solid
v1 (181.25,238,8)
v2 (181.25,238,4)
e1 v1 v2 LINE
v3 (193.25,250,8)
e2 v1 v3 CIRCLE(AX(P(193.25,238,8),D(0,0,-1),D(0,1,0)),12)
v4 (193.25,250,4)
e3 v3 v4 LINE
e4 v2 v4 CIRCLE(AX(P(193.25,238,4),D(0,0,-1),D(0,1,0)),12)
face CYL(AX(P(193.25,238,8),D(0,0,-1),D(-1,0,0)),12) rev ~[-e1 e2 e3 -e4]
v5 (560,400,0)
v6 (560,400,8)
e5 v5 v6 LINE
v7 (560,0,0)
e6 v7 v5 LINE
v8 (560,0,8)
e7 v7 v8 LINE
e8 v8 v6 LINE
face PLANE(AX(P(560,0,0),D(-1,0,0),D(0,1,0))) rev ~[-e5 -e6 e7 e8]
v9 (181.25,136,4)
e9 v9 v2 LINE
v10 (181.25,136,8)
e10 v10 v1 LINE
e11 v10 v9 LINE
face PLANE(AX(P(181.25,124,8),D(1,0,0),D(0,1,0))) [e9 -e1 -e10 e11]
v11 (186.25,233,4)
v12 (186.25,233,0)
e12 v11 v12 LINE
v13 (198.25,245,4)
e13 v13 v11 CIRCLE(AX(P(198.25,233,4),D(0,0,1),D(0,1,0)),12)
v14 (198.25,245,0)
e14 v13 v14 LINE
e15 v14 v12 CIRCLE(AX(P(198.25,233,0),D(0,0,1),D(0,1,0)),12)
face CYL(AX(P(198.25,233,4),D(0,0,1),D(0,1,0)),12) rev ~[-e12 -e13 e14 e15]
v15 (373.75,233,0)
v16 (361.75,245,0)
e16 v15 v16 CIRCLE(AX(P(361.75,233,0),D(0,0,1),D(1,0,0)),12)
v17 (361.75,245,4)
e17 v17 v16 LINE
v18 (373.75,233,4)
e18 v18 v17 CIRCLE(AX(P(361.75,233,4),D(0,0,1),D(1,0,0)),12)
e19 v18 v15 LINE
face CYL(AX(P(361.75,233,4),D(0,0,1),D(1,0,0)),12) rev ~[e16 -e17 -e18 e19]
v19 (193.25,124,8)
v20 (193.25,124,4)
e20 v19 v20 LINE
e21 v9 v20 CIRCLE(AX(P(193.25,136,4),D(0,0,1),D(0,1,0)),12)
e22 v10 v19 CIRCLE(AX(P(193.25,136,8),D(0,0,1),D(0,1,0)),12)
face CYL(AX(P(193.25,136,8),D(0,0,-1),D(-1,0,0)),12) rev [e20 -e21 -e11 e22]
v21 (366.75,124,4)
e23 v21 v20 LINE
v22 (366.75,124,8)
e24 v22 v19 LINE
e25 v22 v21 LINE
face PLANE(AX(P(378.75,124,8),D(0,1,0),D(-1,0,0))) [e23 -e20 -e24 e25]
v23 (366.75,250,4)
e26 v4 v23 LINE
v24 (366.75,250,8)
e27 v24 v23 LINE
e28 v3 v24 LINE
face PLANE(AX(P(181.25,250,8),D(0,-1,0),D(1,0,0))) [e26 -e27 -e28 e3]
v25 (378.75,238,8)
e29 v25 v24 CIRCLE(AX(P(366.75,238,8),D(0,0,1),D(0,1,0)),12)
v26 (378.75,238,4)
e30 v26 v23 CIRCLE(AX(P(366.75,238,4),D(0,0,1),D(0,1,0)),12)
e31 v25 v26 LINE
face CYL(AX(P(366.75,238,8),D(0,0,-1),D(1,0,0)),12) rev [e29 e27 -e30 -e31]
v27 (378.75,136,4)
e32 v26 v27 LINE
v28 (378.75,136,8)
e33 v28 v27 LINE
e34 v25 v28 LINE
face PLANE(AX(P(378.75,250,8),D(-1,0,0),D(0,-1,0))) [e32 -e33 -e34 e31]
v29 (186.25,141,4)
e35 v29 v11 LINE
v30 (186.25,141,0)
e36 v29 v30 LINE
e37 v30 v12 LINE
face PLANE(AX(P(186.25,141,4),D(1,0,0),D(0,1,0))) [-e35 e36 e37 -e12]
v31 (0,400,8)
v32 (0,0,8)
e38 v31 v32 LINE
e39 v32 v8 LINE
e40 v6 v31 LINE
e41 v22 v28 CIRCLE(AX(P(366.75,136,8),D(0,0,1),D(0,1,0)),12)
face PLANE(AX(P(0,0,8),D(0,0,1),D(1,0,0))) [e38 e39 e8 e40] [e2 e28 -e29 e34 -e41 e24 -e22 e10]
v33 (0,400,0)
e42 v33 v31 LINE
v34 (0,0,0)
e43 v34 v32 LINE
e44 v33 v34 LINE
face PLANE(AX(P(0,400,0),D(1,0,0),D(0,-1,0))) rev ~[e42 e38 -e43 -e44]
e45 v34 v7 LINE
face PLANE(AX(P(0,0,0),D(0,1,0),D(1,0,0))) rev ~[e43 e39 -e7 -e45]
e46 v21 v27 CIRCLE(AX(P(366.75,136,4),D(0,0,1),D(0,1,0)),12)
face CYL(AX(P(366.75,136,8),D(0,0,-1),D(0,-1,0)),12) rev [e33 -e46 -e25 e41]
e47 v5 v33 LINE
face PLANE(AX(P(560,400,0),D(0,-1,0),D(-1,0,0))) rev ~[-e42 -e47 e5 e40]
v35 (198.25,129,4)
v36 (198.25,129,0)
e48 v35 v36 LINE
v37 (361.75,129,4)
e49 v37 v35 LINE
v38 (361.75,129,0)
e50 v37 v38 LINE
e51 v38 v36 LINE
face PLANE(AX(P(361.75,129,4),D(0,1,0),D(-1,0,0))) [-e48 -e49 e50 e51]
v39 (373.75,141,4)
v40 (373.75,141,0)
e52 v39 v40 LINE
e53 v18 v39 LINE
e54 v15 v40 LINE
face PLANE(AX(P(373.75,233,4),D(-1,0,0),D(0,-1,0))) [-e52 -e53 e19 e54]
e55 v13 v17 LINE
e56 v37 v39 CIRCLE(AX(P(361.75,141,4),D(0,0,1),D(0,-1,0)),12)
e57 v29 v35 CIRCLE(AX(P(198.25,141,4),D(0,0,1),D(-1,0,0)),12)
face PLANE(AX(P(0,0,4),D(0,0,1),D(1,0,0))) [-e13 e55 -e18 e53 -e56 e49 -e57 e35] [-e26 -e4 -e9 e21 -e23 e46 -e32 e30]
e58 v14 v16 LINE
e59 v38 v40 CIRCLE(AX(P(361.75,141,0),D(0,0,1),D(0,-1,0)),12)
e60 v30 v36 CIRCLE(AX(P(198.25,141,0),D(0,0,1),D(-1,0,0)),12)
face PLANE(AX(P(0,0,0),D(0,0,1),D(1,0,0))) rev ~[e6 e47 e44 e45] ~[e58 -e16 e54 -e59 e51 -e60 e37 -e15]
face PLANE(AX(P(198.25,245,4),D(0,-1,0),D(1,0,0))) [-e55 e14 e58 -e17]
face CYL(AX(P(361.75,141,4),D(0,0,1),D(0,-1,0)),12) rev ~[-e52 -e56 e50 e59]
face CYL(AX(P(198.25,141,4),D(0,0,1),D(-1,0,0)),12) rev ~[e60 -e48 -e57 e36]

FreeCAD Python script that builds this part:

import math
import FreeCAD as App
import Part
import Sketcher
from FreeCAD import Vector
Q = App.Units.Quantity


def edges_at(feature, points):
    """Names of the edges that pass closest to the given points."""
    edges = feature.Shape.Edges
    near = lambda p: min(range(len(edges)), key=lambda i: edges[i].distToShape(Part.Vertex(*p))[0])
    return sorted({f"Edge{near(p) + 1}" for p in points})


def add_polygon(sketch, points):
    """Adds a closed chain of lines whose ends are joined by coincident constraints."""
    first, n = sketch.GeometryCount, len(points)
    for a, b in zip(points, points[1:] + points[:1]):
        sketch.addGeometry(Part.LineSegment(App.Vector(*a, 0), App.Vector(*b, 0)), False)
    for i in range(n):
        sketch.addConstraint(Sketcher.Constraint("Coincident", first + i, 2, first + (i + 1) % n, 1))

doc = App.newDocument("Part")
body = doc.addObject("PartDesign::Body", "Body")

# Sketch on XY plane
sketch1 = body.newObject("Sketcher::SketchObject", "Sketch")
sketch1.AttachmentSupport = (doc.getObject("XY_Plane"), [""])
sketch1.MapMode = "FlatFace"
add_polygon(sketch1, [(0, 400), (0, 0), (560, 0), (560, 400)])  # lines 0-3
sketch1.addConstraint([
    Sketcher.Constraint("Vertical", 0),
    Sketcher.Constraint("Horizontal", 1),
    Sketcher.Constraint("Vertical", 2),
    Sketcher.Constraint("Horizontal", 3),
    Sketcher.Constraint("Coincident", 0, 2, -1, 1),
    Sketcher.Constraint("DistanceX", 1, 1, 1, 2, Q("560 mm")),
    Sketcher.Constraint("DistanceY", 0, 2, 0, 1, Q("400 mm")),
])
pad1 = body.newObject("PartDesign::Pad", "Pad")
pad1.Profile = sketch1
pad1.Length = 8

# Sketch on XY plane
sketch2 = body.newObject("Sketcher::SketchObject", "Sketch001")
sketch2.AttachmentSupport = (doc.getObject("XY_Plane"), [""])
sketch2.MapMode = "FlatFace"
sketch2.AttachmentOffset = App.Placement(Vector(0, 0, 8), App.Rotation())
add_polygon(sketch2, [(379, 250), (181, 250), (181, 124), (379, 124)])  # lines 0-3
add_polygon(sketch2, [(186, 129), (186, 245), (374, 245), (374, 129)])  # lines 4-7
sketch2.addConstraint([
    Sketcher.Constraint("Horizontal", 0),
    Sketcher.Constraint("Vertical", 1),
    Sketcher.Constraint("Horizontal", 2),
    Sketcher.Constraint("Vertical", 3),
    Sketcher.Constraint("Vertical", 4),
    Sketcher.Constraint("Horizontal", 5),
    Sketcher.Constraint("Vertical", 6),
    Sketcher.Constraint("Horizontal", 7),
    Sketcher.Constraint("DistanceY", 1, 2, 1, 1, Q("126 mm")),
    Sketcher.Constraint("DistanceX", 0, 2, 0, 1, Q("197.5 mm")),
    Sketcher.Constraint("DistanceX", 0, 2, 4, 2, Q("5 mm")),
    Sketcher.Constraint("DistanceY", 4, 2, 0, 2, Q("5 mm")),
    Sketcher.Constraint("DistanceX", 5, 2, 3, 2, Q("5 mm")),
    Sketcher.Constraint("DistanceY", 2, 2, 6, 2, Q("5 mm")),
    Sketcher.Constraint("DistanceX", -1, 1, 0, 2, Q("181.25 mm")),
    Sketcher.Constraint("DistanceY", -1, 1, 0, 2, Q("250 mm")),
])
pocket1 = body.newObject("PartDesign::Pocket", "Pocket")
pocket1.Profile = sketch2
pocket1.Length = 4
doc.recompute()

fillet = body.newObject("PartDesign::Fillet", "Fillet")
fillet.Base = (pocket1, edges_at(pocket1, [
    (181.25, 250, 6),
    (181.25, 124, 6),
    (378.75, 124, 6),
    (378.75, 250, 6),
]))
fillet.Radius = 12

# Sketch on XY plane
sketch3 = body.newObject("Sketcher::SketchObject", "Sketch002")
sketch3.AttachmentSupport = (doc.getObject("XY_Plane"), [""])
sketch3.MapMode = "FlatFace"
sketch3.AttachmentOffset = App.Placement(Vector(0, 0, 8), App.Rotation())
add_polygon(sketch3, [(374, 245), (186, 245), (186, 129), (374, 129)])  # lines 0-3
sketch3.addConstraint([
    Sketcher.Constraint("Horizontal", 0),
    Sketcher.Constraint("Vertical", 1),
    Sketcher.Constraint("Horizontal", 2),
    Sketcher.Constraint("Vertical", 3),
    Sketcher.Constraint("DistanceY", 1, 2, 1, 1, Q("116 mm")),
    Sketcher.Constraint("DistanceX", 0, 2, 0, 1, Q("187.5 mm")),
    Sketcher.Constraint("DistanceY", -1, 1, 0, 2, Q("245 mm")),
    Sketcher.Constraint("DistanceX", -1, 1, 0, 2, Q("186.25 mm")),
])
pocket2 = body.newObject("PartDesign::Pocket", "Pocket001")
pocket2.Profile = sketch3
pocket2.Length = 4

# Sketch on XY plane
sketch4 = body.newObject("Sketcher::SketchObject", "Sketch003")
sketch4.AttachmentSupport = (doc.getObject("XY_Plane"), [""])
sketch4.MapMode = "FlatFace"
sketch4.AttachmentOffset = App.Placement(Vector(0, 0, 4), App.Rotation())
sketch4.addGeometry([
    Part.LineSegment(Vector(362, 245, 0), Vector(198, 245, 0)),  # 0
    Part.ArcOfCircle(Part.Circle(Vector(198, 233, 0), Vector(0, 0, 1), 12), math.radians(90), math.radians(180)),  # 1
    Part.LineSegment(Vector(186, 233, 0), Vector(186, 141, 0)),  # 2
    Part.ArcOfCircle(Part.Circle(Vector(198, 141, 0), Vector(0, 0, 1), 12), math.radians(180), math.radians(270)),  # 3
    Part.LineSegment(Vector(198, 129, 0), Vector(362, 129, 0)),  # 4
    Part.ArcOfCircle(Part.Circle(Vector(362, 141, 0), Vector(0, 0, 1), 12), math.radians(-90), math.radians(0)),  # 5
    Part.LineSegment(Vector(374, 141, 0), Vector(374, 233, 0)),  # 6
    Part.ArcOfCircle(Part.Circle(Vector(362, 233, 0), Vector(0, 0, 1), 12), math.radians(0), math.radians(90)),  # 7
], False)
sketch4.addConstraint([
    Sketcher.Constraint("Tangent", 0, 2, 1, 1),
    Sketcher.Constraint("Tangent", 1, 2, 2, 1),
    Sketcher.Constraint("Tangent", 2, 2, 3, 1),
    Sketcher.Constraint("Tangent", 3, 2, 4, 1),
    Sketcher.Constraint("Tangent", 4, 2, 5, 1),
    Sketcher.Constraint("Tangent", 5, 2, 6, 1),
    Sketcher.Constraint("Tangent", 6, 2, 7, 1),
    Sketcher.Constraint("Tangent", 7, 2, 0, 1),
    Sketcher.Constraint("Horizontal", 0),
    Sketcher.Constraint("Vertical", 2),
    Sketcher.Constraint("Horizontal", 4),
    Sketcher.Constraint("Vertical", 6),
    Sketcher.Constraint("Equal", 1, 3),
    Sketcher.Constraint("Equal", 3, 5),
    Sketcher.Constraint("Equal", 5, 7),
    Sketcher.Constraint("Radius", 1, Q("12 mm")),
    Sketcher.Constraint("DistanceY", 2, 2, 2, 1, Q("92 mm")),
    Sketcher.Constraint("DistanceX", 0, 2, 0, 1, Q("163.5 mm")),
    Sketcher.Constraint("DistanceY", -1, 1, 1, 3, Q("233 mm")),
    Sketcher.Constraint("DistanceX", -1, 1, 1, 3, Q("198.25 mm")),
])
pocket3 = body.newObject("PartDesign::Pocket", "Pocket002")
pocket3.Profile = sketch4
pocket3.Type = "ThroughAll"

doc.recompute()
